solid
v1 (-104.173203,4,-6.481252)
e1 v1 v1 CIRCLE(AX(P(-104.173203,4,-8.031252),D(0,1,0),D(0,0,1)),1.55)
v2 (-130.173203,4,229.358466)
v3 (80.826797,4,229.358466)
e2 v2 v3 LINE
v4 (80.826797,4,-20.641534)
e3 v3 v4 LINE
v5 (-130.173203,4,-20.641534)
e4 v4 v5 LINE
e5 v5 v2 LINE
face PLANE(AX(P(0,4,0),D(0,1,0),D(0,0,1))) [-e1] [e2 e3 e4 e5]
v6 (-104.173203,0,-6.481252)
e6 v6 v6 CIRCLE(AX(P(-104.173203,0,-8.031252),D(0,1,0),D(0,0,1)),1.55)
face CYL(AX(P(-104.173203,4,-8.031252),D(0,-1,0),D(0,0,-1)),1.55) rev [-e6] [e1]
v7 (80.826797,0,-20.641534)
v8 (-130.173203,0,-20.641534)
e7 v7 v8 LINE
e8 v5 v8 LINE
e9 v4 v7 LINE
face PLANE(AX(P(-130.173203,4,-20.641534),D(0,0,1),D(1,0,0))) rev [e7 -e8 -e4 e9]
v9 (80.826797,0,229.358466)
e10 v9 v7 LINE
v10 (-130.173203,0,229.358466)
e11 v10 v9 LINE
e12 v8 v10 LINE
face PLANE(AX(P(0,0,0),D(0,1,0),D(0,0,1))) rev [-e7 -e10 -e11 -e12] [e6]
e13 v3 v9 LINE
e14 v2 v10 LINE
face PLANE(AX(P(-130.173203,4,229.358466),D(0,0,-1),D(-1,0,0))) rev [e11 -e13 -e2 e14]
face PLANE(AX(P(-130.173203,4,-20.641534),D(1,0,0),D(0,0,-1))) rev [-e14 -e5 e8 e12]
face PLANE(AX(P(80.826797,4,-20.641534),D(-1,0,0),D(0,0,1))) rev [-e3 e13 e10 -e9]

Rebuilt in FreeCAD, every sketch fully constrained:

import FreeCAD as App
import Part
import Sketcher
from FreeCAD import Vector


def add_polygon(sketch, points):
    """Adds a closed chain of lines whose ends are joined by coincident constraints."""
    first, n = sketch.GeometryCount, len(points)
    for a, b in zip(points, points[1:] + points[:1]):
        sketch.addGeometry(Part.LineSegment(App.Vector(*a, 0), App.Vector(*b, 0)), False)
    for i in range(n):
        sketch.addConstraint(Sketcher.Constraint("Coincident", first + i, 2, first + (i + 1) % n, 1))

doc = App.newDocument("Part")
body = doc.addObject("PartDesign::Body", "Body")

# Sketch on XZ plane
sketch1 = body.newObject("Sketcher::SketchObject", "Sketch")
sketch1.AttachmentSupport = (doc.getObject("XZ_Plane"), [""])
sketch1.MapMode = "FlatFace"
add_polygon(sketch1, [(-130.173203, -20.641534), (-130.173203, 229.358466), (80.826797, 229.358466), (80.826797, -20.641534)])  # lines 0-3
sketch1.addGeometry(Part.Circle(Vector(-104.173203, -8.031252, 0), Vector(0, 0, 1), 1.55), False)  # 4
sketch1.addConstraint([
    Sketcher.Constraint("Vertical", 0),
    Sketcher.Constraint("Horizontal", 1),
    Sketcher.Constraint("Vertical", 2),
    Sketcher.Constraint("Horizontal", 3),
    Sketcher.Constraint("Diameter", 4, 3.1),
    Sketcher.Constraint("DistanceX", 1, 1, 1, 2, 211.0),
    Sketcher.Constraint("DistanceY", 0, 1, 0, 2, 250.0),
    Sketcher.Constraint("DistanceX", 0, 2, 4, 3, 26.0),
    Sketcher.Constraint("DistanceY", 4, 3, -1, 1, 8.031252),
    Sketcher.Constraint("DistanceX", 4, 3, -1, 1, 104.173203),
    Sketcher.Constraint("DistanceY", -1, 1, 0, 2, 229.358466),
])
pad1 = body.newObject("PartDesign::Pad", "Pad")
pad1.Profile = sketch1
pad1.Length = 4
pad1.Reversed = True

doc.recompute()
